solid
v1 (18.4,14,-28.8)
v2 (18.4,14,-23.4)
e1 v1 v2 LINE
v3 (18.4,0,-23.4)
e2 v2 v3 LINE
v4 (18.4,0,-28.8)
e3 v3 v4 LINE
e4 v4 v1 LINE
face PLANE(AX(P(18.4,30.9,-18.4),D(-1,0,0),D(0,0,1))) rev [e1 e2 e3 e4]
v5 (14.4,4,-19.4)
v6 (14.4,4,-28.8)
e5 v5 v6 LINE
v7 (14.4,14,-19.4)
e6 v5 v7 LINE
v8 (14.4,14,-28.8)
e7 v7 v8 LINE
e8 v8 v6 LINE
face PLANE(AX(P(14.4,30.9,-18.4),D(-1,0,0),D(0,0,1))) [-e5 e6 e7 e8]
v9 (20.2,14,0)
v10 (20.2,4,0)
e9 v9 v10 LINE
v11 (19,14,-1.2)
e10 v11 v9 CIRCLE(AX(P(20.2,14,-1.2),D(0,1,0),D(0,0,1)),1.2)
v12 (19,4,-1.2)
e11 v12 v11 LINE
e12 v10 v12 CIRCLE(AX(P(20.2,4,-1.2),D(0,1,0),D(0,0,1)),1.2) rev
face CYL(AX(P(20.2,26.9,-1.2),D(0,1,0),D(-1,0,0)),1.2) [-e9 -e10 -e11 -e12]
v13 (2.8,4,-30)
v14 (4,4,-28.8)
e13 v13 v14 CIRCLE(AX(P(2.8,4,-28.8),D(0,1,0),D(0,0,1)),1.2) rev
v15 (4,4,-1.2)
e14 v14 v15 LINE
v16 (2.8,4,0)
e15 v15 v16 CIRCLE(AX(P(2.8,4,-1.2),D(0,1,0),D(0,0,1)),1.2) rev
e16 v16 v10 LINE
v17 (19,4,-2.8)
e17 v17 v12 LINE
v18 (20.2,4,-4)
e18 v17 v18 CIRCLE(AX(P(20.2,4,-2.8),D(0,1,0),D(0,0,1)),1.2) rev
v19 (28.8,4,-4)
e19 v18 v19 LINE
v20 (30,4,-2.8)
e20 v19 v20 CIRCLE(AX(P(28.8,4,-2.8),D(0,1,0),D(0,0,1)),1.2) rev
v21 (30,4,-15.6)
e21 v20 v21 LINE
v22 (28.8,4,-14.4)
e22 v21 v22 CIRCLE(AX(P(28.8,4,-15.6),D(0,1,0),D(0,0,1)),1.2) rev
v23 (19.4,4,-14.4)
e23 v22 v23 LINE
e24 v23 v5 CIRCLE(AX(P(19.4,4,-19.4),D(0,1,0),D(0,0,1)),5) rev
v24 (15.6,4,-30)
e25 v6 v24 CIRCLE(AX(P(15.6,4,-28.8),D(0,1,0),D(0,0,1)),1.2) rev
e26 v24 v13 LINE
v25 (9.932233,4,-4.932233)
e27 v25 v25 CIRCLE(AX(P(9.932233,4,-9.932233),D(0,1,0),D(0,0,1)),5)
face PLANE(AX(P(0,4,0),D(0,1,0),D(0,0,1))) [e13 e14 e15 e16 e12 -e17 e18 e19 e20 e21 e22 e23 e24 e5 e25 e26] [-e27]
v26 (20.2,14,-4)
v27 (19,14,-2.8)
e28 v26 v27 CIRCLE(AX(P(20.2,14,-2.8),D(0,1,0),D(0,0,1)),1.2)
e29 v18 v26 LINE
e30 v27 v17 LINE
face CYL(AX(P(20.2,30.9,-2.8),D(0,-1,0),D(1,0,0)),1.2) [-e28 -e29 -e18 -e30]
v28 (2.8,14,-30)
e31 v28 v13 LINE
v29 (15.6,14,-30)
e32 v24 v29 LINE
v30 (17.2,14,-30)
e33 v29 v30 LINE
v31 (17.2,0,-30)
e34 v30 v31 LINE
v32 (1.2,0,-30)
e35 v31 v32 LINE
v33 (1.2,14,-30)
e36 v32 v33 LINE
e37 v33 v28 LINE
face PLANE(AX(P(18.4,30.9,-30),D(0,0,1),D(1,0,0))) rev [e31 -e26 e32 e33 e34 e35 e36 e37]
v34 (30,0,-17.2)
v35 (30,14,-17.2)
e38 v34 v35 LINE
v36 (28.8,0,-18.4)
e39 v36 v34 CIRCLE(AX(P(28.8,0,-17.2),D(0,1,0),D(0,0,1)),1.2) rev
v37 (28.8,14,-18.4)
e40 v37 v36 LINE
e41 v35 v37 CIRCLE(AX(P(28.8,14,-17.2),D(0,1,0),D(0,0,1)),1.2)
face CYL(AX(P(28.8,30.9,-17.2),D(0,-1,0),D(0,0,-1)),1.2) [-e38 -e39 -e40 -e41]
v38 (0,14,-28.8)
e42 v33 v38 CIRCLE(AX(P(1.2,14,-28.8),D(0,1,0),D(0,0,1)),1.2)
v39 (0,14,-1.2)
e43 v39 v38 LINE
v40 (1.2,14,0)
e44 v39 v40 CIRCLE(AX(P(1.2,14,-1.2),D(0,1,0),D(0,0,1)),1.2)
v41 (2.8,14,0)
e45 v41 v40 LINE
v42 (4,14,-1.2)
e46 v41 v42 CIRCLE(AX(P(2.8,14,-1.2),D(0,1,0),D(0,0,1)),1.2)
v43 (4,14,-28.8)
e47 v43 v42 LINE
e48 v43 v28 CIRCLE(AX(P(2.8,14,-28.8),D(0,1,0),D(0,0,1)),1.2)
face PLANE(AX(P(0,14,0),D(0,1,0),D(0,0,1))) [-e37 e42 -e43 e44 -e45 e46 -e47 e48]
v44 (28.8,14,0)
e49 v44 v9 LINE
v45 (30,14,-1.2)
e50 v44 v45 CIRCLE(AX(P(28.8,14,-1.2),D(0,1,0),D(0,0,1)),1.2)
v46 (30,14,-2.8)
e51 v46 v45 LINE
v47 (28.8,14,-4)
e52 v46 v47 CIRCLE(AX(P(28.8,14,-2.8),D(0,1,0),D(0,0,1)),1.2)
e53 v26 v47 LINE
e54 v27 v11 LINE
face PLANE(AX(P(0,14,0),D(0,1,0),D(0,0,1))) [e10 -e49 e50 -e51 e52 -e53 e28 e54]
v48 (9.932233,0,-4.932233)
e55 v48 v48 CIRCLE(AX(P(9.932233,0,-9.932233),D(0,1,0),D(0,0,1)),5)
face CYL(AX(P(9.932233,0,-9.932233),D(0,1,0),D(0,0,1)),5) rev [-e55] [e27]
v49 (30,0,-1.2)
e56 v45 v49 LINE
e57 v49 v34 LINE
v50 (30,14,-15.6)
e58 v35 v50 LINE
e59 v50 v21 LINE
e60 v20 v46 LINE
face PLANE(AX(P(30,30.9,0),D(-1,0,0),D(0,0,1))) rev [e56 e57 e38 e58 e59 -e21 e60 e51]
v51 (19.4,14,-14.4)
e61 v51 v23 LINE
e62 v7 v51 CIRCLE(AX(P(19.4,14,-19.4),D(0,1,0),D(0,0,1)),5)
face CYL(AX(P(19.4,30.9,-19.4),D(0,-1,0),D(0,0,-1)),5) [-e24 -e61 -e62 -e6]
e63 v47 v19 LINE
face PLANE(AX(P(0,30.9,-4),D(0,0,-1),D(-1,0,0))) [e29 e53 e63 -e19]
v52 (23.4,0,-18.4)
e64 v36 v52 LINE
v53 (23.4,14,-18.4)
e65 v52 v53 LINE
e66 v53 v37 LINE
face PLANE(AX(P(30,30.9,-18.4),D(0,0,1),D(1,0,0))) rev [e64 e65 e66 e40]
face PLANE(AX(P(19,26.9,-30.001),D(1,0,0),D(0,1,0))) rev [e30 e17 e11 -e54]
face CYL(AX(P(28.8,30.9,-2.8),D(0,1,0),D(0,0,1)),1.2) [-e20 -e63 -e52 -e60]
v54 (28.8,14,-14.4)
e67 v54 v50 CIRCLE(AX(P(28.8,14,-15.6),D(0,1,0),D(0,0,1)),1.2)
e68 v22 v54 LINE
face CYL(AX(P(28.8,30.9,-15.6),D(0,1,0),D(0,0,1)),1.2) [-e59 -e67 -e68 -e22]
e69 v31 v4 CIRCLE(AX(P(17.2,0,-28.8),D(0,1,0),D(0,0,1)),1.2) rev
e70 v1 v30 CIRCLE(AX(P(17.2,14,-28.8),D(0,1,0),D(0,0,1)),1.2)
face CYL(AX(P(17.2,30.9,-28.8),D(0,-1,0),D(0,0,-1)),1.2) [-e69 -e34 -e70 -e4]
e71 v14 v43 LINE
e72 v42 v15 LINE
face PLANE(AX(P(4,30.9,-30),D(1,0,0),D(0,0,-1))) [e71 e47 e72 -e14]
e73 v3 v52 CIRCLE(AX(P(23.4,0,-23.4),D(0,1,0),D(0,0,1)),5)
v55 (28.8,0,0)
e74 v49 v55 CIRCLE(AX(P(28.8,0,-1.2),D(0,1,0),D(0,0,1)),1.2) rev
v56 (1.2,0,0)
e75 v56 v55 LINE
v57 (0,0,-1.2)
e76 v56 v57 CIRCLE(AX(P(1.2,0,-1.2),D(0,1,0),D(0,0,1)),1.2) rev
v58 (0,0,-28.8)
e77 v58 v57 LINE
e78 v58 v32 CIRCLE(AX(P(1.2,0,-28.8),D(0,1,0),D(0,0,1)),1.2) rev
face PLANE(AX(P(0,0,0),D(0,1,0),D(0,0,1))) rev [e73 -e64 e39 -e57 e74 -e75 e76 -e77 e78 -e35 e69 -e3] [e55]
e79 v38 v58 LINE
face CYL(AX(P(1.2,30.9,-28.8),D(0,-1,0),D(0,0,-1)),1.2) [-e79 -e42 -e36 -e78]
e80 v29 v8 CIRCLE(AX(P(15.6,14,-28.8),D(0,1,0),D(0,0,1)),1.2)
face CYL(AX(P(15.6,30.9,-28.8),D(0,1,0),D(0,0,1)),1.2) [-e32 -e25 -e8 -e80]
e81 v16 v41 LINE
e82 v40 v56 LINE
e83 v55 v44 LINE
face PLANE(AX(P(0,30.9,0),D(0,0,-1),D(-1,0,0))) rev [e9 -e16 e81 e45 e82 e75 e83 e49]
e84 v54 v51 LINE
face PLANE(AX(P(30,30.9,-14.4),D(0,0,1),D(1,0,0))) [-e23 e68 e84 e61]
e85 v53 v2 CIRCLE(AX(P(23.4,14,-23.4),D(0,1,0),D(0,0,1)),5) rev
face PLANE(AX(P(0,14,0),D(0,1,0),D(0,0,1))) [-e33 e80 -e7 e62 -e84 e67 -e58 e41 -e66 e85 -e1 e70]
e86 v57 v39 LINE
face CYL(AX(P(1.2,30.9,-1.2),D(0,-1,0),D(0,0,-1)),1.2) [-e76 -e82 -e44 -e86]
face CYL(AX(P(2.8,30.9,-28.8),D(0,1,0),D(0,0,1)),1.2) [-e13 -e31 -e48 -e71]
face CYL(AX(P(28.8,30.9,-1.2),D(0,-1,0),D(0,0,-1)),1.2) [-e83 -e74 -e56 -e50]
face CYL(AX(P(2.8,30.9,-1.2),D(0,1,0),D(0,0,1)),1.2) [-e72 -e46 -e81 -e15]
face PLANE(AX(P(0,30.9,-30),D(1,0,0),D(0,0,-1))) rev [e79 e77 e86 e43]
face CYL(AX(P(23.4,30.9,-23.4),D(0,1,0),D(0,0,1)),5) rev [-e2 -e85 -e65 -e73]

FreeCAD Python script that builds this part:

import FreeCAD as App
import Part
import Sketcher
from FreeCAD import Vector


def edges_at(feature, points):
    """Names of the edges that pass closest to the given points."""
    edges = feature.Shape.Edges
    near = lambda p: min(range(len(edges)), key=lambda i: edges[i].distToShape(Part.Vertex(*p))[0])
    return sorted({f"Edge{near(p) + 1}" for p in points})


def faces_at(feature, points):
    """Names of the faces that lie closest to the given points."""
    faces = feature.Shape.Faces
    near = lambda p: min(range(len(faces)), key=lambda i: faces[i].distToShape(Part.Vertex(*p))[0])
    return sorted({f"Face{near(p) + 1}" for p in points})

doc = App.newDocument("Part")
body = doc.addObject("PartDesign::Body", "Body")

sketch1 = body.newObject("Sketcher::SketchObject", "Sketch")
sketch1.AttachmentSupport = (doc.getObject("XZ_Plane"), [""])
sketch1.MapMode = "FlatFace"
sketch1.addGeometry([
    Part.LineSegment(Vector(0, 0, 0), Vector(30, 0, 0)),
    Part.LineSegment(Vector(30, 0, 0), Vector(30, -18.4, 0)),
    Part.LineSegment(Vector(30, -18.4, 0), Vector(18.4, -18.4, 0)),
    Part.LineSegment(Vector(18.4, -18.4, 0), Vector(18.4, -30, 0)),
    Part.LineSegment(Vector(18.4, -30, 0), Vector(0, -30, 0)),
    Part.LineSegment(Vector(0, -30, 0), Vector(0, 0, 0)),
], False)
sketch1.addConstraint([
    Sketcher.Constraint("Coincident", 0, 2, 1, 1),
    Sketcher.Constraint("Coincident", 1, 2, 2, 1),
    Sketcher.Constraint("Coincident", 2, 2, 3, 1),
    Sketcher.Constraint("Coincident", 3, 2, 4, 1),
    Sketcher.Constraint("Coincident", 4, 2, 5, 1),
    Sketcher.Constraint("Coincident", 5, 2, 0, 1),
    Sketcher.Constraint("Horizontal", 0),
    Sketcher.Constraint("Vertical", 1),
    Sketcher.Constraint("Horizontal", 2),
    Sketcher.Constraint("Vertical", 3),
    Sketcher.Constraint("Horizontal", 4),
    Sketcher.Constraint("Vertical", 5),
    Sketcher.Constraint("Coincident", 5, 2, -1, 1),
    Sketcher.Constraint("Equal", 4, 1),
    Sketcher.Constraint("Equal", 2, 3),
    Sketcher.Constraint("DistanceX", 0, 1, 0, 2, 30.0),
    Sketcher.Constraint("DistanceX", 2, 2, 2, 1, 11.6),
])
pad1 = body.newObject("PartDesign::Pad", "Pad")
pad1.Profile = sketch1
pad1.Length = 30.9
pad1.Reversed = True
doc.recompute()

thickness = body.newObject("PartDesign::Thickness", "Thickness")
thickness.Base = (pad1, faces_at(pad1, [(9.2, 15.45, -30), (30, 15.45, -9.2)]))
thickness.Value = 4
thickness.Reversed = True
thickness.Join = "Intersection"

sketch2 = body.newObject("Sketcher::SketchObject", "Sketch001")
sketch2.AttachmentSupport = (doc.getObject("XY_Plane"), [""])
sketch2.MapMode = "FlatFace"
sketch2.addGeometry([
    Part.LineSegment(Vector(4, 26.9, 0), Vector(4, 4, 0)),
    Part.LineSegment(Vector(4, 4, 0), Vector(19, 4, 0)),
    Part.LineSegment(Vector(19, 4, 0), Vector(19, 26.9, 0)),
    Part.LineSegment(Vector(19, 26.9, 0), Vector(4, 26.9, 0)),
], False)
sketch2.addConstraint([
    Sketcher.Constraint("Coincident", 0, 2, 1, 1),
    Sketcher.Constraint("Coincident", 1, 2, 2, 1),
    Sketcher.Constraint("Coincident", 2, 2, 3, 1),
    Sketcher.Constraint("Coincident", 3, 2, 0, 1),
    Sketcher.Constraint("Vertical", 0),
    Sketcher.Constraint("Horizontal", 1),
    Sketcher.Constraint("Vertical", 2),
    Sketcher.Constraint("Horizontal", 3),
    Sketcher.Constraint("DistanceX", 1, 1, 1, 2, 15.0),
    Sketcher.Constraint("DistanceY", 0, 2, 0, 1, 22.9),
    Sketcher.Constraint("DistanceX", -1, 1, 0, 2, 4.0),
    Sketcher.Constraint("DistanceY", -1, 1, 0, 2, 4.0),
])
pocket1 = body.newObject("PartDesign::Pocket", "Pocket")
pocket1.Profile = sketch2
pocket1.Type = "UpToFirst"

sketch3 = body.newObject("Sketcher::SketchObject", "Sketch002")
sketch3.AttachmentSupport = (doc.getObject("XZ_Plane"), [""])
sketch3.MapMode = "FlatFace"
sketch3.AttachmentOffset = App.Placement(Vector(0, 0, -30.9), App.Rotation())
sketch3.addGeometry([
    Part.LineSegment(Vector(0, -30, 0), Vector(0, 0, 0)),
    Part.LineSegment(Vector(0, 0, 0), Vector(30, 0, 0)),
    Part.LineSegment(Vector(30, 0, 0), Vector(30, -18.4, 0)),
    Part.LineSegment(Vector(30, -18.4, 0), Vector(18.4, -18.4, 0)),
    Part.LineSegment(Vector(18.4, -18.4, 0), Vector(18.4, -30, 0)),
    Part.LineSegment(Vector(18.4, -30, 0), Vector(0, -30, 0)),
], False)
sketch3.addConstraint([
    Sketcher.Constraint("Coincident", 0, 2, 1, 1),
    Sketcher.Constraint("Coincident", 1, 2, 2, 1),
    Sketcher.Constraint("Coincident", 2, 2, 3, 1),
    Sketcher.Constraint("Coincident", 3, 2, 4, 1),
    Sketcher.Constraint("Coincident", 4, 2, 5, 1),
    Sketcher.Constraint("Coincident", 5, 2, 0, 1),
    Sketcher.Constraint("Vertical", 0),
    Sketcher.Constraint("Horizontal", 1),
    Sketcher.Constraint("Vertical", 2),
    Sketcher.Constraint("Horizontal", 3),
    Sketcher.Constraint("Vertical", 4),
    Sketcher.Constraint("Horizontal", 5),
    Sketcher.Constraint("Coincident", 0, 2, -1, 1),
    Sketcher.Constraint("Equal", 1, 0),
    Sketcher.Constraint("Equal", 5, 2),
    Sketcher.Constraint("DistanceX", 1, 1, 1, 2, 30.0),
    Sketcher.Constraint("DistanceX", 3, 2, 3, 1, 11.6),
])
pocket2 = body.newObject("PartDesign::Pocket", "Pocket001")
pocket2.Profile = sketch3
pocket2.Length = 16.9
pocket2.Reversed = True
doc.recompute()

fillet = body.newObject("PartDesign::Fillet", "Fillet")
fillet.Base = (pocket2, edges_at(pocket2, [(14.4, 9, -14.4), (18.4, 7, -18.4)]))
fillet.Radius = 5
doc.recompute()

fillet2 = body.newObject("PartDesign::Fillet", "Fillet001")
fillet2.Base = (fillet, edges_at(fillet, [
    (19, 9, -4),
    (19, 9, 0),
    (14.4, 9, -30),
    (30, 9, -14.4),
    (30, 9, -4),
    (4, 9, -30),
    (4, 9, 0),
    (18.4, 7, -30),
    (30, 7, -18.4),
    (30, 7, 0),
    (0, 7, 0),
    (0, 7, -30),
]))
fillet2.Radius = 1.2

sketch4 = body.newObject("Sketcher::SketchObject", "Sketch003")
sketch4.AttachmentSupport = (doc.getObject("XZ_Plane"), [""])
sketch4.MapMode = "FlatFace"
sketch4.AttachmentOffset = App.Placement(Vector(0, 0, -4), App.Rotation())
sketch4.addGeometry(Part.Circle(Vector(9.932233, -9.932233, 0), Vector(0, 0, 1), 5), False)
sketch4.addConstraint([
    Sketcher.Constraint("Diameter", 0, 10.0),
    Sketcher.Constraint("DistanceX", -1, 1, 0, 3, 9.932233),
    Sketcher.Constraint("DistanceY", 0, 3, -1, 1, 9.932233),
])
pocket3 = body.newObject("PartDesign::Pocket", "Pocket002")
pocket3.Profile = sketch4
pocket3.Type = "ThroughAll"
pocket3.Reversed = True

doc.recompute()
